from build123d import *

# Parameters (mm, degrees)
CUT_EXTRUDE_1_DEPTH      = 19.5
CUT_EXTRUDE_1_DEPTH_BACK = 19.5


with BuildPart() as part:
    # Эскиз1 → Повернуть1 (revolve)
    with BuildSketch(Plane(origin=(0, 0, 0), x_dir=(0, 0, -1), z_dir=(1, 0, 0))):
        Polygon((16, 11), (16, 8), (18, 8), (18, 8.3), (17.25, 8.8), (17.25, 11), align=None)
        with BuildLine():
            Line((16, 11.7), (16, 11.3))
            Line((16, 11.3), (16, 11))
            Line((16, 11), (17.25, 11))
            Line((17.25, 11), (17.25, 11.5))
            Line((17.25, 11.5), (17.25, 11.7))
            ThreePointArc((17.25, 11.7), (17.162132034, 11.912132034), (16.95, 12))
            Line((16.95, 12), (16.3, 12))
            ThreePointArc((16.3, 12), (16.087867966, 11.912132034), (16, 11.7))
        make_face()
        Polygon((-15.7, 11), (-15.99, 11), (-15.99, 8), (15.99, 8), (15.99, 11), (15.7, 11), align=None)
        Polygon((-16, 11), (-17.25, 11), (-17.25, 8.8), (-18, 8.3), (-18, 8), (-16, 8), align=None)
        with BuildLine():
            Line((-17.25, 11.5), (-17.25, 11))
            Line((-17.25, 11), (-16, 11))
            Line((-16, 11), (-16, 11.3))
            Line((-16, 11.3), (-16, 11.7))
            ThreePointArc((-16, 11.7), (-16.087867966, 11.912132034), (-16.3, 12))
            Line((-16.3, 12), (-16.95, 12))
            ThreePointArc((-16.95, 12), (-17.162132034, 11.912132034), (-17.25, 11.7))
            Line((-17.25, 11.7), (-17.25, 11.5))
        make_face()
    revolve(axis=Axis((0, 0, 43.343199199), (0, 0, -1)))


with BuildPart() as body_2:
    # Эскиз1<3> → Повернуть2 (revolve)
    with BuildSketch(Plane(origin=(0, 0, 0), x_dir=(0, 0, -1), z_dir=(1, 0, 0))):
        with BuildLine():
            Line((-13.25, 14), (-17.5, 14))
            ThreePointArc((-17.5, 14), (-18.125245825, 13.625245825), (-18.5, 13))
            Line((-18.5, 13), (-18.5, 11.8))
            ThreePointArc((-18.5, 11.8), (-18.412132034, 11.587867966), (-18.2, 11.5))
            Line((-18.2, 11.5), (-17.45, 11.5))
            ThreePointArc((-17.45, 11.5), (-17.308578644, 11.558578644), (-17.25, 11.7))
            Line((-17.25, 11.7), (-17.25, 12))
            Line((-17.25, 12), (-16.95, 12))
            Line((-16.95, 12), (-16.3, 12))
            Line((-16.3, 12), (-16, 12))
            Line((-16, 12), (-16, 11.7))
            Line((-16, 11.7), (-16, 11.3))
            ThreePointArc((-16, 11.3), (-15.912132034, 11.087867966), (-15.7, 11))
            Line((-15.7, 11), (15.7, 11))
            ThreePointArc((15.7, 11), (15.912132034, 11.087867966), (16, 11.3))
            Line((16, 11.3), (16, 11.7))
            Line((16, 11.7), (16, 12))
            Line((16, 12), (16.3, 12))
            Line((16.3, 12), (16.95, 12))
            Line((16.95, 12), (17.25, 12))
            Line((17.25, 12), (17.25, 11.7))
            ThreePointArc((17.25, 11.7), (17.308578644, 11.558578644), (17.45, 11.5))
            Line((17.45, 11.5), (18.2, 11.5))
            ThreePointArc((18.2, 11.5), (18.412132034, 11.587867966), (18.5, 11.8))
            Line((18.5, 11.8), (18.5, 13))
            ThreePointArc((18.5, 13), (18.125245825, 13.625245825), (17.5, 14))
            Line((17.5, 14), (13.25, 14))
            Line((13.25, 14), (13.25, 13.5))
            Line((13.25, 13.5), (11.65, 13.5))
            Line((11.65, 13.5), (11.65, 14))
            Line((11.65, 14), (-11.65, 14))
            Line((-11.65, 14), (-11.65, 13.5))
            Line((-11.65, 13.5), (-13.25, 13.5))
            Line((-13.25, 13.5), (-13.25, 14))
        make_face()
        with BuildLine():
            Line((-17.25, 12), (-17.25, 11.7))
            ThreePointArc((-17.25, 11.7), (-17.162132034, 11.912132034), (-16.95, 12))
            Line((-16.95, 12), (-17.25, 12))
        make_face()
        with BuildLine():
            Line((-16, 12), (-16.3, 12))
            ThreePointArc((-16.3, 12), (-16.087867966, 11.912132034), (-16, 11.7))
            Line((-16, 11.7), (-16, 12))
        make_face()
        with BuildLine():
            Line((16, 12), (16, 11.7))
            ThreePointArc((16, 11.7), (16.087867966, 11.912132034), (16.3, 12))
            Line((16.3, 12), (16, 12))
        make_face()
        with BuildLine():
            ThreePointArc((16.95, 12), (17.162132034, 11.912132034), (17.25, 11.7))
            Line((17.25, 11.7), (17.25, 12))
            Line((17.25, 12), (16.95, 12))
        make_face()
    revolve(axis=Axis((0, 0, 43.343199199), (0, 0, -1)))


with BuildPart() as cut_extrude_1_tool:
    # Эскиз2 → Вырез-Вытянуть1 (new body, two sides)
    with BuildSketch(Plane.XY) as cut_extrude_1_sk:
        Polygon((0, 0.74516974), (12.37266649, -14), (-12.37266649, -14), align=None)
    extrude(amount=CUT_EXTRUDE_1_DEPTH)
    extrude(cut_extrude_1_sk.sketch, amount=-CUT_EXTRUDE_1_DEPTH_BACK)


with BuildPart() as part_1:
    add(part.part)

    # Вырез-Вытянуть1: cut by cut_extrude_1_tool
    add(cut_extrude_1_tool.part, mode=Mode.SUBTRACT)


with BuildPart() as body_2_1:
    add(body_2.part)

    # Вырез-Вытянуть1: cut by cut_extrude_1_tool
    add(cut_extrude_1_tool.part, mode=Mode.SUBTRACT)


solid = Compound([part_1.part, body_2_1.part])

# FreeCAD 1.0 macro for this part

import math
import FreeCAD as App
import Part
import Sketcher

V = App.Vector
Q = App.Units.Quantity


def add_polygon(sketch, points):
    """Adds a closed chain of lines whose ends are joined by coincident constraints."""
    first, n = sketch.GeometryCount, len(points)
    for a, b in zip(points, points[1:] + points[:1]):
        sketch.addGeometry(Part.LineSegment(App.Vector(*a, 0), App.Vector(*b, 0)), False)
    for i in range(n):
        sketch.addConstraint(Sketcher.Constraint("Coincident", first + i, 2, first + (i + 1) % n, 1))

doc = App.newDocument("Part")
params = doc.addObject("Spreadsheet::Sheet", "Params")
for row, (alias, value) in enumerate([
    ("sketch1_radius", "0.3 mm"),
    ("sketch1_width", "3 mm"),
    ("sketch1_height", "2 mm"),
    ("sketch1_width2", "0.3 mm"),
    ("sketch1_width3", "2.9 mm"),
    ("revolution_angle", "360 deg"),
    ("sketch2_radius", "1.5 mm"),
    ("sketch2_radius2", "0.3 mm"),
    ("sketch2_radius3", "0.2 mm"),
    ("sketch2_width", "1.2 mm"),
    ("sketch2_width2", "0.4 mm"),
    ("revolution2_angle", "360 deg"),
    ("pad1_length", "19.5 mm"),
    ("pad1_length2", "19.5 mm"),
], start=1):
    params.set(f"A{row}", alias)
    params.set(f"B{row}", "=" + value)
    params.setAlias(f"B{row}", alias)

body = doc.addObject("PartDesign::Body", "Body")
body.AllowCompound = True

sketch1 = body.newObject("Sketcher::SketchObject", "Sketch")
sketch1.AttachmentSupport = (doc.getObject("YZ_Plane"), [""])
sketch1.MapMode = "FlatFace"
sketch1.addGeometry(Part.LineSegment(V(8, -16, 0), V(8, -18, 0)), False)
sketch1.addGeometry(Part.LineSegment(V(8, -18, 0), V(8.3, -18, 0)), False)
sketch1.addGeometry(Part.LineSegment(V(8.3, -18, 0), V(8.8, -17.25, 0)), False)
sketch1.addGeometry(Part.LineSegment(V(8.8, -17.25, 0), V(11.7, -17.25, 0)), False)
sketch1.addGeometry(Part.ArcOfCircle(Part.Circle(V(11.7, -16.95, 0), V(0, 0, 1), 0.3), math.radians(-90), math.radians(0)), False)
sketch1.addGeometry(Part.LineSegment(V(12, -16.95, 0), V(12, -16.3, 0)), False)
sketch1.addGeometry(Part.ArcOfCircle(Part.Circle(V(11.7, -16.3, 0), V(0, 0, 1), 0.3), math.radians(0), math.radians(90)), False)
sketch1.addGeometry(Part.LineSegment(V(11.7, -16, 0), V(8, -16, 0)), False)
add_polygon(sketch1, [(11, 15.99), (8, 15.99), (8, -15.99), (11, -15.99)])
sketch1.addGeometry(Part.LineSegment(V(8.8, 17.25, 0), V(8.3, 18, 0)), False)
sketch1.addGeometry(Part.LineSegment(V(8.3, 18, 0), V(8, 18, 0)), False)
sketch1.addGeometry(Part.LineSegment(V(8, 18, 0), V(8, 16, 0)), False)
sketch1.addGeometry(Part.LineSegment(V(8, 16, 0), V(11.7, 16, 0)), False)
sketch1.addGeometry(Part.ArcOfCircle(Part.Circle(V(11.7, 16.3, 0), V(0, 0, 1), 0.3), math.radians(-90), math.radians(0)), False)
sketch1.addGeometry(Part.LineSegment(V(12, 16.3, 0), V(12, 16.95, 0)), False)
sketch1.addGeometry(Part.ArcOfCircle(Part.Circle(V(11.7, 16.95, 0), V(0, 0, 1), 0.3), math.radians(0), math.radians(90)), False)
sketch1.addGeometry(Part.LineSegment(V(11.7, 17.25, 0), V(8.8, 17.25, 0)), False)
sketch1.addConstraint(Sketcher.Constraint("Coincident", 0, 2, 1, 1))
sketch1.addConstraint(Sketcher.Constraint("Coincident", 1, 2, 2, 1))
sketch1.addConstraint(Sketcher.Constraint("Coincident", 2, 2, 3, 1))
sketch1.addConstraint(Sketcher.Constraint("Tangent", 3, 2, 4, 1))
sketch1.addConstraint(Sketcher.Constraint("Tangent", 4, 2, 5, 1))
sketch1.addConstraint(Sketcher.Constraint("Tangent", 5, 2, 6, 1))
sketch1.addConstraint(Sketcher.Constraint("Tangent", 6, 2, 7, 1))
sketch1.addConstraint(Sketcher.Constraint("Coincident", 7, 2, 0, 1))
sketch1.addConstraint(Sketcher.Constraint("Coincident", 12, 2, 13, 1))
sketch1.addConstraint(Sketcher.Constraint("Coincident", 13, 2, 14, 1))
sketch1.addConstraint(Sketcher.Constraint("Coincident", 14, 2, 15, 1))
sketch1.addConstraint(Sketcher.Constraint("Tangent", 15, 2, 16, 1))
sketch1.addConstraint(Sketcher.Constraint("Tangent", 16, 2, 17, 1))
sketch1.addConstraint(Sketcher.Constraint("Tangent", 17, 2, 18, 1))
sketch1.addConstraint(Sketcher.Constraint("Tangent", 18, 2, 19, 1))
sketch1.addConstraint(Sketcher.Constraint("Coincident", 19, 2, 12, 1))
sketch1.addConstraint(Sketcher.Constraint("Vertical", 0))
sketch1.addConstraint(Sketcher.Constraint("Horizontal", 1))
sketch1.addConstraint(Sketcher.Constraint("Horizontal", 3))
sketch1.addConstraint(Sketcher.Constraint("Vertical", 5))
sketch1.addConstraint(Sketcher.Constraint("Horizontal", 7))
sketch1.addConstraint(Sketcher.Constraint("Horizontal", 8))
sketch1.addConstraint(Sketcher.Constraint("Vertical", 9))
sketch1.addConstraint(Sketcher.Constraint("Horizontal", 10))
sketch1.addConstraint(Sketcher.Constraint("Vertical", 11))
sketch1.addConstraint(Sketcher.Constraint("Horizontal", 13))
sketch1.addConstraint(Sketcher.Constraint("Vertical", 14))
sketch1.addConstraint(Sketcher.Constraint("Horizontal", 15))
sketch1.addConstraint(Sketcher.Constraint("Vertical", 17))
sketch1.addConstraint(Sketcher.Constraint("Horizontal", 19))
sketch1.addConstraint(Sketcher.Constraint("Equal", 4, 6))
sketch1.addConstraint(Sketcher.Constraint("Equal", 6, 16))
sketch1.addConstraint(Sketcher.Constraint("Equal", 16, 18))
sketch1.addConstraint(Sketcher.Constraint("Symmetric", 6, 3, 16, 3, -1))
sketch1.addConstraint(Sketcher.Constraint("Symmetric", 1, 2, 12, 2, -1))
sketch1.addConstraint(Sketcher.Constraint("Symmetric", 2, 2, 19, 2, -1))
sketch1.addConstraint(Sketcher.Constraint("Vertical", 7, 2, 8, 2))
sketch1.addConstraint(Sketcher.Constraint("Vertical", 9, 2, 13, 2))
sketch1.addConstraint(Sketcher.Constraint("Radius", 4, Q("0.3 mm")))
sketch1.addConstraint(Sketcher.Constraint("DistanceX", 8, 2, 8, 1, Q("3 mm")))
sketch1.addConstraint(Sketcher.Constraint("DistanceY", 0, 2, 0, 1, Q("2 mm")))
sketch1.addConstraint(Sketcher.Constraint("DistanceX", 1, 1, 1, 2, Q("0.3 mm")))
sketch1.addConstraint(Sketcher.Constraint("DistanceX", 3, 1, 3, 2, Q("2.9 mm")))
sketch1.addConstraint(Sketcher.Constraint("DistanceX", 7, 2, 7, 1, Q("3.7 mm")))
sketch1.addConstraint(Sketcher.Constraint("DistanceX", -1, 1, 0, 2, Q("8 mm")))
sketch1.addConstraint(Sketcher.Constraint("DistanceY", 0, 2, -1, 1, Q("18 mm")))
sketch1.addConstraint(Sketcher.Constraint("DistanceY", 5, 1, 5, 2, Q("0.65 mm")))
sketch1.addConstraint(Sketcher.Constraint("DistanceY", 9, 2, 9, 1, Q("31.98 mm")))
sketch1.addConstraint(Sketcher.Constraint("DistanceY", -1, 1, 8, 2, Q("15.99 mm")))
sketch1.setExpression("Constraints[42]", "Params.sketch1_radius")
sketch1.setExpression("Constraints[43]", "Params.sketch1_width")
sketch1.setExpression("Constraints[44]", "Params.sketch1_height")
sketch1.setExpression("Constraints[45]", "Params.sketch1_width2")
sketch1.setExpression("Constraints[46]", "Params.sketch1_width3")
revolution = body.newObject("PartDesign::Revolution", "Revolution")
revolution.Profile = sketch1
revolution.ReferenceAxis = (sketch1, ["V_Axis"])
revolution.setExpression("Angle", "Params.revolution_angle")
body2 = doc.addObject("PartDesign::Body", "Body001")

sketch2 = body2.newObject("Sketcher::SketchObject", "Sketch001")
sketch2.AttachmentSupport = (doc.getObject("YZ_Plane001"), [""])
sketch2.MapMode = "FlatFace"
sketch2.addGeometry(Part.LineSegment(V(14, 13.25, 0), V(14, 17.5, 0)), False)
sketch2.addGeometry(Part.ArcOfCircle(Part.Circle(V(12.564586, 17.064586, 0), V(0, 0, 1), 1.5), math.radians(16.874494), math.radians(73.125506)), False)
sketch2.addGeometry(Part.LineSegment(V(13, 18.5, 0), V(11.8, 18.5, 0)), False)
sketch2.addGeometry(Part.ArcOfCircle(Part.Circle(V(11.8, 18.2, 0), V(0, 0, 1), 0.3), math.radians(90), math.radians(180)), False)
sketch2.addGeometry(Part.LineSegment(V(11.5, 18.2, 0), V(11.5, 17.45, 0)), False)
sketch2.addGeometry(Part.ArcOfCircle(Part.Circle(V(11.7, 17.45, 0), V(0, 0, 1), 0.2), math.radians(-180), math.radians(-90)), False)
sketch2.addGeometry(Part.ArcOfCircle(Part.Circle(V(11.7, 16.95, 0), V(0, 0, 1), 0.3), math.radians(0), math.radians(90)), False)
sketch2.addGeometry(Part.LineSegment(V(12, 16.95, 0), V(12, 16.3, 0)), False)
sketch2.addGeometry(Part.ArcOfCircle(Part.Circle(V(11.7, 16.3, 0), V(0, 0, 1), 0.3), math.radians(-90), math.radians(0)), False)
sketch2.addGeometry(Part.LineSegment(V(11.7, 16, 0), V(11.3, 16, 0)), False)
sketch2.addGeometry(Part.ArcOfCircle(Part.Circle(V(11.3, 15.7, 0), V(0, 0, 1), 0.3), math.radians(90), math.radians(180)), False)
sketch2.addGeometry(Part.LineSegment(V(11, 15.7, 0), V(11, -15.7, 0)), False)
sketch2.addGeometry(Part.ArcOfCircle(Part.Circle(V(11.3, -15.7, 0), V(0, 0, 1), 0.3), math.radians(-180), math.radians(-90)), False)
sketch2.addGeometry(Part.LineSegment(V(11.3, -16, 0), V(11.7, -16, 0)), False)
sketch2.addGeometry(Part.ArcOfCircle(Part.Circle(V(11.7, -16.3, 0), V(0, 0, 1), 0.3), math.radians(0), math.radians(90)), False)
sketch2.addGeometry(Part.LineSegment(V(12, -16.3, 0), V(12, -16.95, 0)), False)
sketch2.addGeometry(Part.ArcOfCircle(Part.Circle(V(11.7, -16.95, 0), V(0, 0, 1), 0.3), math.radians(-90), math.radians(0)), False)
sketch2.addGeometry(Part.ArcOfCircle(Part.Circle(V(11.7, -17.45, 0), V(0, 0, 1), 0.2), math.radians(90), math.radians(180)), False)
sketch2.addGeometry(Part.LineSegment(V(11.5, -17.45, 0), V(11.5, -18.2, 0)), False)
sketch2.addGeometry(Part.ArcOfCircle(Part.Circle(V(11.8, -18.2, 0), V(0, 0, 1), 0.3), math.radians(-180), math.radians(-90)), False)
sketch2.addGeometry(Part.LineSegment(V(11.8, -18.5, 0), V(13, -18.5, 0)), False)
sketch2.addGeometry(Part.ArcOfCircle(Part.Circle(V(12.564586, -17.064586, 0), V(0, 0, 1), 1.5), math.radians(-73.125506), math.radians(-16.874494)), False)
sketch2.addGeometry(Part.LineSegment(V(14, -17.5, 0), V(14, -13.25, 0)), False)
sketch2.addGeometry(Part.LineSegment(V(14, -13.25, 0), V(13.5, -13.25, 0)), False)
sketch2.addGeometry(Part.LineSegment(V(13.5, -13.25, 0), V(13.5, -11.65, 0)), False)
sketch2.addGeometry(Part.LineSegment(V(13.5, -11.65, 0), V(14, -11.65, 0)), False)
sketch2.addGeometry(Part.LineSegment(V(14, -11.65, 0), V(14, 11.65, 0)), False)
sketch2.addGeometry(Part.LineSegment(V(14, 11.65, 0), V(13.5, 11.65, 0)), False)
sketch2.addGeometry(Part.LineSegment(V(13.5, 11.65, 0), V(13.5, 13.25, 0)), False)
sketch2.addGeometry(Part.LineSegment(V(13.5, 13.25, 0), V(14, 13.25, 0)), False)
sketch2.addConstraint(Sketcher.Constraint("Coincident", 0, 2, 1, 1))
sketch2.addConstraint(Sketcher.Constraint("Coincident", 1, 2, 2, 1))
sketch2.addConstraint(Sketcher.Constraint("Tangent", 2, 2, 3, 1))
sketch2.addConstraint(Sketcher.Constraint("Tangent", 3, 2, 4, 1))
sketch2.addConstraint(Sketcher.Constraint("Tangent", 4, 2, 5, 1))
sketch2.addConstraint(Sketcher.Constraint("Tangent", 5, 2, 6, 2))
sketch2.addConstraint(Sketcher.Constraint("Tangent", 6, 1, 7, 1))
sketch2.addConstraint(Sketcher.Constraint("Tangent", 7, 2, 8, 2))
sketch2.addConstraint(Sketcher.Constraint("Tangent", 8, 1, 9, 1))
sketch2.addConstraint(Sketcher.Constraint("Tangent", 9, 2, 10, 1))
sketch2.addConstraint(Sketcher.Constraint("Tangent", 10, 2, 11, 1))
sketch2.addConstraint(Sketcher.Constraint("Tangent", 11, 2, 12, 1))
sketch2.addConstraint(Sketcher.Constraint("Tangent", 12, 2, 13, 1))
sketch2.addConstraint(Sketcher.Constraint("Tangent", 13, 2, 14, 2))
sketch2.addConstraint(Sketcher.Constraint("Tangent", 14, 1, 15, 1))
sketch2.addConstraint(Sketcher.Constraint("Tangent", 15, 2, 16, 2))
sketch2.addConstraint(Sketcher.Constraint("Tangent", 16, 1, 17, 1))
sketch2.addConstraint(Sketcher.Constraint("Tangent", 17, 2, 18, 1))
sketch2.addConstraint(Sketcher.Constraint("Tangent", 18, 2, 19, 1))
sketch2.addConstraint(Sketcher.Constraint("Tangent", 19, 2, 20, 1))
sketch2.addConstraint(Sketcher.Constraint("Coincident", 20, 2, 21, 1))
sketch2.addConstraint(Sketcher.Constraint("Coincident", 21, 2, 22, 1))
sketch2.addConstraint(Sketcher.Constraint("Coincident", 22, 2, 23, 1))
sketch2.addConstraint(Sketcher.Constraint("Coincident", 23, 2, 24, 1))
sketch2.addConstraint(Sketcher.Constraint("Coincident", 24, 2, 25, 1))
sketch2.addConstraint(Sketcher.Constraint("Coincident", 25, 2, 26, 1))
sketch2.addConstraint(Sketcher.Constraint("Coincident", 26, 2, 27, 1))
sketch2.addConstraint(Sketcher.Constraint("Coincident", 27, 2, 28, 1))
sketch2.addConstraint(Sketcher.Constraint("Coincident", 28, 2, 29, 1))
sketch2.addConstraint(Sketcher.Constraint("Coincident", 29, 2, 0, 1))
sketch2.addConstraint(Sketcher.Constraint("Vertical", 0))
sketch2.addConstraint(Sketcher.Constraint("Horizontal", 2))
sketch2.addConstraint(Sketcher.Constraint("Vertical", 4))
sketch2.addConstraint(Sketcher.Constraint("Vertical", 7))
sketch2.addConstraint(Sketcher.Constraint("Horizontal", 9))
sketch2.addConstraint(Sketcher.Constraint("Vertical", 11))
sketch2.addConstraint(Sketcher.Constraint("Horizontal", 13))
sketch2.addConstraint(Sketcher.Constraint("Vertical", 15))
sketch2.addConstraint(Sketcher.Constraint("Vertical", 18))
sketch2.addConstraint(Sketcher.Constraint("Horizontal", 20))
sketch2.addConstraint(Sketcher.Constraint("Vertical", 22))
sketch2.addConstraint(Sketcher.Constraint("Horizontal", 23))
sketch2.addConstraint(Sketcher.Constraint("Vertical", 24))
sketch2.addConstraint(Sketcher.Constraint("Horizontal", 25))
sketch2.addConstraint(Sketcher.Constraint("Vertical", 26))
sketch2.addConstraint(Sketcher.Constraint("Horizontal", 27))
sketch2.addConstraint(Sketcher.Constraint("Vertical", 28))
sketch2.addConstraint(Sketcher.Constraint("Horizontal", 29))
sketch2.addConstraint(Sketcher.Constraint("Equal", 3, 6))
sketch2.addConstraint(Sketcher.Constraint("Equal", 6, 8))
sketch2.addConstraint(Sketcher.Constraint("Equal", 8, 10))
sketch2.addConstraint(Sketcher.Constraint("Equal", 10, 12))
sketch2.addConstraint(Sketcher.Constraint("Equal", 12, 14))
sketch2.addConstraint(Sketcher.Constraint("Equal", 14, 16))
sketch2.addConstraint(Sketcher.Constraint("Equal", 5, 17))
sketch2.addConstraint(Sketcher.Constraint("Equal", 16, 19))
sketch2.addConstraint(Sketcher.Constraint("Equal", 1, 21))
sketch2.addConstraint(Sketcher.Constraint("Symmetric", 8, 3, 14, 3, -1))
sketch2.addConstraint(Sketcher.Constraint("Symmetric", 5, 3, 17, 3, -1))
sketch2.addConstraint(Sketcher.Constraint("Symmetric", 1, 3, 21, 3, -1))
sketch2.addConstraint(Sketcher.Constraint("Symmetric", 24, 2, 27, 2, -1))
sketch2.addConstraint(Sketcher.Constraint("Symmetric", 22, 2, 29, 2, -1))
sketch2.addConstraint(Sketcher.Constraint("Vertical", 5, 3, 6, 3))
sketch2.addConstraint(Sketcher.Constraint("Vertical", 1, 2, 20, 2))
sketch2.addConstraint(Sketcher.Constraint("Vertical", 22, 2, 25, 2))
sketch2.addConstraint(Sketcher.Constraint("Radius", 1, Q("1.5 mm")))
sketch2.addConstraint(Sketcher.Constraint("Radius", 3, Q("0.3 mm")))
sketch2.addConstraint(Sketcher.Constraint("Radius", 5, Q("0.2 mm")))
sketch2.addConstraint(Sketcher.Constraint("DistanceX", 2, 2, 2, 1, Q("1.2 mm")))
sketch2.addConstraint(Sketcher.Constraint("DistanceX", 9, 2, 9, 1, Q("0.4 mm")))
sketch2.addConstraint(Sketcher.Constraint("DistanceX", 23, 2, 23, 1, Q("0.5 mm")))
sketch2.addConstraint(Sketcher.Constraint("DistanceY", 11, 2, 11, 1, Q("31.4 mm")))
sketch2.addConstraint(Sketcher.Constraint("DistanceY", 24, 1, 24, 2, Q("1.6 mm")))
sketch2.addConstraint(Sketcher.Constraint("DistanceY", 26, 1, 26, 2, Q("23.3 mm")))
sketch2.addConstraint(Sketcher.Constraint("DistanceX", -1, 1, 0, 2, Q("14 mm")))
sketch2.addConstraint(Sketcher.Constraint("DistanceX", -1, 1, 1, 2, Q("13 mm")))
sketch2.addConstraint(Sketcher.Constraint("DistanceY", 0, 2, 1, 2, Q("1 mm")))
sketch2.addConstraint(Sketcher.Constraint("DistanceY", 0, 1, 0, 2, Q("4.25 mm")))
sketch2.addConstraint(Sketcher.Constraint("DistanceY", 4, 2, 4, 1, Q("0.75 mm")))
sketch2.setExpression("Constraints[65]", "Params.sketch2_radius")
sketch2.setExpression("Constraints[66]", "Params.sketch2_radius2")
sketch2.setExpression("Constraints[67]", "Params.sketch2_radius3")
sketch2.setExpression("Constraints[68]", "Params.sketch2_width")
sketch2.setExpression("Constraints[69]", "Params.sketch2_width2")
revolution2 = body2.newObject("PartDesign::Revolution", "Revolution001")
revolution2.Profile = sketch2
revolution2.ReferenceAxis = (sketch2, ["V_Axis"])
revolution2.setExpression("Angle", "Params.revolution2_angle")
body3 = doc.addObject("PartDesign::Body", "Body002")

sketch3 = body3.newObject("Sketcher::SketchObject", "Sketch002")
sketch3.AttachmentSupport = (doc.getObject("XY_Plane002"), [""])
sketch3.MapMode = "FlatFace"
add_polygon(sketch3, [(12.372666, -14), (0, 0.74517), (-12.372666, -14)])
sketch3.addConstraint(Sketcher.Constraint("Horizontal", 2))
sketch3.addConstraint(Sketcher.Constraint("PointOnObject", 0, 2, -2))
sketch3.addConstraint(Sketcher.Constraint("Equal", 0, 1))
sketch3.addConstraint(Sketcher.Constraint("Angle", 0, Q("130 deg")))
sketch3.addConstraint(Sketcher.Constraint("DistanceY", 1, 2, -1, 1, Q("14 mm")))
sketch3.addConstraint(Sketcher.Constraint("DistanceX", 2, 1, 2, 2, Q("24.745333 mm")))
pad1 = body3.newObject("PartDesign::Pad", "Pad")
pad1.Profile = sketch3
pad1.Type = "TwoLengths"
pad1.setExpression("Length", "Params.pad1_length")
pad1.setExpression("Length2", "Params.pad1_length2")
body.AllowCompound = True
doc.recompute()

body4 = doc.addObject("PartDesign::Body", "Body003")
body4.BaseFeature = body3
boolean = body.newObject("PartDesign::Boolean", "Boolean")
boolean.Type = "Cut"
boolean.addObjects([body4])
doc.recompute()

boolean2 = body2.newObject("PartDesign::Boolean", "Boolean001")
boolean2.Type = "Cut"
boolean2.addObjects([body3])

doc.recompute()
